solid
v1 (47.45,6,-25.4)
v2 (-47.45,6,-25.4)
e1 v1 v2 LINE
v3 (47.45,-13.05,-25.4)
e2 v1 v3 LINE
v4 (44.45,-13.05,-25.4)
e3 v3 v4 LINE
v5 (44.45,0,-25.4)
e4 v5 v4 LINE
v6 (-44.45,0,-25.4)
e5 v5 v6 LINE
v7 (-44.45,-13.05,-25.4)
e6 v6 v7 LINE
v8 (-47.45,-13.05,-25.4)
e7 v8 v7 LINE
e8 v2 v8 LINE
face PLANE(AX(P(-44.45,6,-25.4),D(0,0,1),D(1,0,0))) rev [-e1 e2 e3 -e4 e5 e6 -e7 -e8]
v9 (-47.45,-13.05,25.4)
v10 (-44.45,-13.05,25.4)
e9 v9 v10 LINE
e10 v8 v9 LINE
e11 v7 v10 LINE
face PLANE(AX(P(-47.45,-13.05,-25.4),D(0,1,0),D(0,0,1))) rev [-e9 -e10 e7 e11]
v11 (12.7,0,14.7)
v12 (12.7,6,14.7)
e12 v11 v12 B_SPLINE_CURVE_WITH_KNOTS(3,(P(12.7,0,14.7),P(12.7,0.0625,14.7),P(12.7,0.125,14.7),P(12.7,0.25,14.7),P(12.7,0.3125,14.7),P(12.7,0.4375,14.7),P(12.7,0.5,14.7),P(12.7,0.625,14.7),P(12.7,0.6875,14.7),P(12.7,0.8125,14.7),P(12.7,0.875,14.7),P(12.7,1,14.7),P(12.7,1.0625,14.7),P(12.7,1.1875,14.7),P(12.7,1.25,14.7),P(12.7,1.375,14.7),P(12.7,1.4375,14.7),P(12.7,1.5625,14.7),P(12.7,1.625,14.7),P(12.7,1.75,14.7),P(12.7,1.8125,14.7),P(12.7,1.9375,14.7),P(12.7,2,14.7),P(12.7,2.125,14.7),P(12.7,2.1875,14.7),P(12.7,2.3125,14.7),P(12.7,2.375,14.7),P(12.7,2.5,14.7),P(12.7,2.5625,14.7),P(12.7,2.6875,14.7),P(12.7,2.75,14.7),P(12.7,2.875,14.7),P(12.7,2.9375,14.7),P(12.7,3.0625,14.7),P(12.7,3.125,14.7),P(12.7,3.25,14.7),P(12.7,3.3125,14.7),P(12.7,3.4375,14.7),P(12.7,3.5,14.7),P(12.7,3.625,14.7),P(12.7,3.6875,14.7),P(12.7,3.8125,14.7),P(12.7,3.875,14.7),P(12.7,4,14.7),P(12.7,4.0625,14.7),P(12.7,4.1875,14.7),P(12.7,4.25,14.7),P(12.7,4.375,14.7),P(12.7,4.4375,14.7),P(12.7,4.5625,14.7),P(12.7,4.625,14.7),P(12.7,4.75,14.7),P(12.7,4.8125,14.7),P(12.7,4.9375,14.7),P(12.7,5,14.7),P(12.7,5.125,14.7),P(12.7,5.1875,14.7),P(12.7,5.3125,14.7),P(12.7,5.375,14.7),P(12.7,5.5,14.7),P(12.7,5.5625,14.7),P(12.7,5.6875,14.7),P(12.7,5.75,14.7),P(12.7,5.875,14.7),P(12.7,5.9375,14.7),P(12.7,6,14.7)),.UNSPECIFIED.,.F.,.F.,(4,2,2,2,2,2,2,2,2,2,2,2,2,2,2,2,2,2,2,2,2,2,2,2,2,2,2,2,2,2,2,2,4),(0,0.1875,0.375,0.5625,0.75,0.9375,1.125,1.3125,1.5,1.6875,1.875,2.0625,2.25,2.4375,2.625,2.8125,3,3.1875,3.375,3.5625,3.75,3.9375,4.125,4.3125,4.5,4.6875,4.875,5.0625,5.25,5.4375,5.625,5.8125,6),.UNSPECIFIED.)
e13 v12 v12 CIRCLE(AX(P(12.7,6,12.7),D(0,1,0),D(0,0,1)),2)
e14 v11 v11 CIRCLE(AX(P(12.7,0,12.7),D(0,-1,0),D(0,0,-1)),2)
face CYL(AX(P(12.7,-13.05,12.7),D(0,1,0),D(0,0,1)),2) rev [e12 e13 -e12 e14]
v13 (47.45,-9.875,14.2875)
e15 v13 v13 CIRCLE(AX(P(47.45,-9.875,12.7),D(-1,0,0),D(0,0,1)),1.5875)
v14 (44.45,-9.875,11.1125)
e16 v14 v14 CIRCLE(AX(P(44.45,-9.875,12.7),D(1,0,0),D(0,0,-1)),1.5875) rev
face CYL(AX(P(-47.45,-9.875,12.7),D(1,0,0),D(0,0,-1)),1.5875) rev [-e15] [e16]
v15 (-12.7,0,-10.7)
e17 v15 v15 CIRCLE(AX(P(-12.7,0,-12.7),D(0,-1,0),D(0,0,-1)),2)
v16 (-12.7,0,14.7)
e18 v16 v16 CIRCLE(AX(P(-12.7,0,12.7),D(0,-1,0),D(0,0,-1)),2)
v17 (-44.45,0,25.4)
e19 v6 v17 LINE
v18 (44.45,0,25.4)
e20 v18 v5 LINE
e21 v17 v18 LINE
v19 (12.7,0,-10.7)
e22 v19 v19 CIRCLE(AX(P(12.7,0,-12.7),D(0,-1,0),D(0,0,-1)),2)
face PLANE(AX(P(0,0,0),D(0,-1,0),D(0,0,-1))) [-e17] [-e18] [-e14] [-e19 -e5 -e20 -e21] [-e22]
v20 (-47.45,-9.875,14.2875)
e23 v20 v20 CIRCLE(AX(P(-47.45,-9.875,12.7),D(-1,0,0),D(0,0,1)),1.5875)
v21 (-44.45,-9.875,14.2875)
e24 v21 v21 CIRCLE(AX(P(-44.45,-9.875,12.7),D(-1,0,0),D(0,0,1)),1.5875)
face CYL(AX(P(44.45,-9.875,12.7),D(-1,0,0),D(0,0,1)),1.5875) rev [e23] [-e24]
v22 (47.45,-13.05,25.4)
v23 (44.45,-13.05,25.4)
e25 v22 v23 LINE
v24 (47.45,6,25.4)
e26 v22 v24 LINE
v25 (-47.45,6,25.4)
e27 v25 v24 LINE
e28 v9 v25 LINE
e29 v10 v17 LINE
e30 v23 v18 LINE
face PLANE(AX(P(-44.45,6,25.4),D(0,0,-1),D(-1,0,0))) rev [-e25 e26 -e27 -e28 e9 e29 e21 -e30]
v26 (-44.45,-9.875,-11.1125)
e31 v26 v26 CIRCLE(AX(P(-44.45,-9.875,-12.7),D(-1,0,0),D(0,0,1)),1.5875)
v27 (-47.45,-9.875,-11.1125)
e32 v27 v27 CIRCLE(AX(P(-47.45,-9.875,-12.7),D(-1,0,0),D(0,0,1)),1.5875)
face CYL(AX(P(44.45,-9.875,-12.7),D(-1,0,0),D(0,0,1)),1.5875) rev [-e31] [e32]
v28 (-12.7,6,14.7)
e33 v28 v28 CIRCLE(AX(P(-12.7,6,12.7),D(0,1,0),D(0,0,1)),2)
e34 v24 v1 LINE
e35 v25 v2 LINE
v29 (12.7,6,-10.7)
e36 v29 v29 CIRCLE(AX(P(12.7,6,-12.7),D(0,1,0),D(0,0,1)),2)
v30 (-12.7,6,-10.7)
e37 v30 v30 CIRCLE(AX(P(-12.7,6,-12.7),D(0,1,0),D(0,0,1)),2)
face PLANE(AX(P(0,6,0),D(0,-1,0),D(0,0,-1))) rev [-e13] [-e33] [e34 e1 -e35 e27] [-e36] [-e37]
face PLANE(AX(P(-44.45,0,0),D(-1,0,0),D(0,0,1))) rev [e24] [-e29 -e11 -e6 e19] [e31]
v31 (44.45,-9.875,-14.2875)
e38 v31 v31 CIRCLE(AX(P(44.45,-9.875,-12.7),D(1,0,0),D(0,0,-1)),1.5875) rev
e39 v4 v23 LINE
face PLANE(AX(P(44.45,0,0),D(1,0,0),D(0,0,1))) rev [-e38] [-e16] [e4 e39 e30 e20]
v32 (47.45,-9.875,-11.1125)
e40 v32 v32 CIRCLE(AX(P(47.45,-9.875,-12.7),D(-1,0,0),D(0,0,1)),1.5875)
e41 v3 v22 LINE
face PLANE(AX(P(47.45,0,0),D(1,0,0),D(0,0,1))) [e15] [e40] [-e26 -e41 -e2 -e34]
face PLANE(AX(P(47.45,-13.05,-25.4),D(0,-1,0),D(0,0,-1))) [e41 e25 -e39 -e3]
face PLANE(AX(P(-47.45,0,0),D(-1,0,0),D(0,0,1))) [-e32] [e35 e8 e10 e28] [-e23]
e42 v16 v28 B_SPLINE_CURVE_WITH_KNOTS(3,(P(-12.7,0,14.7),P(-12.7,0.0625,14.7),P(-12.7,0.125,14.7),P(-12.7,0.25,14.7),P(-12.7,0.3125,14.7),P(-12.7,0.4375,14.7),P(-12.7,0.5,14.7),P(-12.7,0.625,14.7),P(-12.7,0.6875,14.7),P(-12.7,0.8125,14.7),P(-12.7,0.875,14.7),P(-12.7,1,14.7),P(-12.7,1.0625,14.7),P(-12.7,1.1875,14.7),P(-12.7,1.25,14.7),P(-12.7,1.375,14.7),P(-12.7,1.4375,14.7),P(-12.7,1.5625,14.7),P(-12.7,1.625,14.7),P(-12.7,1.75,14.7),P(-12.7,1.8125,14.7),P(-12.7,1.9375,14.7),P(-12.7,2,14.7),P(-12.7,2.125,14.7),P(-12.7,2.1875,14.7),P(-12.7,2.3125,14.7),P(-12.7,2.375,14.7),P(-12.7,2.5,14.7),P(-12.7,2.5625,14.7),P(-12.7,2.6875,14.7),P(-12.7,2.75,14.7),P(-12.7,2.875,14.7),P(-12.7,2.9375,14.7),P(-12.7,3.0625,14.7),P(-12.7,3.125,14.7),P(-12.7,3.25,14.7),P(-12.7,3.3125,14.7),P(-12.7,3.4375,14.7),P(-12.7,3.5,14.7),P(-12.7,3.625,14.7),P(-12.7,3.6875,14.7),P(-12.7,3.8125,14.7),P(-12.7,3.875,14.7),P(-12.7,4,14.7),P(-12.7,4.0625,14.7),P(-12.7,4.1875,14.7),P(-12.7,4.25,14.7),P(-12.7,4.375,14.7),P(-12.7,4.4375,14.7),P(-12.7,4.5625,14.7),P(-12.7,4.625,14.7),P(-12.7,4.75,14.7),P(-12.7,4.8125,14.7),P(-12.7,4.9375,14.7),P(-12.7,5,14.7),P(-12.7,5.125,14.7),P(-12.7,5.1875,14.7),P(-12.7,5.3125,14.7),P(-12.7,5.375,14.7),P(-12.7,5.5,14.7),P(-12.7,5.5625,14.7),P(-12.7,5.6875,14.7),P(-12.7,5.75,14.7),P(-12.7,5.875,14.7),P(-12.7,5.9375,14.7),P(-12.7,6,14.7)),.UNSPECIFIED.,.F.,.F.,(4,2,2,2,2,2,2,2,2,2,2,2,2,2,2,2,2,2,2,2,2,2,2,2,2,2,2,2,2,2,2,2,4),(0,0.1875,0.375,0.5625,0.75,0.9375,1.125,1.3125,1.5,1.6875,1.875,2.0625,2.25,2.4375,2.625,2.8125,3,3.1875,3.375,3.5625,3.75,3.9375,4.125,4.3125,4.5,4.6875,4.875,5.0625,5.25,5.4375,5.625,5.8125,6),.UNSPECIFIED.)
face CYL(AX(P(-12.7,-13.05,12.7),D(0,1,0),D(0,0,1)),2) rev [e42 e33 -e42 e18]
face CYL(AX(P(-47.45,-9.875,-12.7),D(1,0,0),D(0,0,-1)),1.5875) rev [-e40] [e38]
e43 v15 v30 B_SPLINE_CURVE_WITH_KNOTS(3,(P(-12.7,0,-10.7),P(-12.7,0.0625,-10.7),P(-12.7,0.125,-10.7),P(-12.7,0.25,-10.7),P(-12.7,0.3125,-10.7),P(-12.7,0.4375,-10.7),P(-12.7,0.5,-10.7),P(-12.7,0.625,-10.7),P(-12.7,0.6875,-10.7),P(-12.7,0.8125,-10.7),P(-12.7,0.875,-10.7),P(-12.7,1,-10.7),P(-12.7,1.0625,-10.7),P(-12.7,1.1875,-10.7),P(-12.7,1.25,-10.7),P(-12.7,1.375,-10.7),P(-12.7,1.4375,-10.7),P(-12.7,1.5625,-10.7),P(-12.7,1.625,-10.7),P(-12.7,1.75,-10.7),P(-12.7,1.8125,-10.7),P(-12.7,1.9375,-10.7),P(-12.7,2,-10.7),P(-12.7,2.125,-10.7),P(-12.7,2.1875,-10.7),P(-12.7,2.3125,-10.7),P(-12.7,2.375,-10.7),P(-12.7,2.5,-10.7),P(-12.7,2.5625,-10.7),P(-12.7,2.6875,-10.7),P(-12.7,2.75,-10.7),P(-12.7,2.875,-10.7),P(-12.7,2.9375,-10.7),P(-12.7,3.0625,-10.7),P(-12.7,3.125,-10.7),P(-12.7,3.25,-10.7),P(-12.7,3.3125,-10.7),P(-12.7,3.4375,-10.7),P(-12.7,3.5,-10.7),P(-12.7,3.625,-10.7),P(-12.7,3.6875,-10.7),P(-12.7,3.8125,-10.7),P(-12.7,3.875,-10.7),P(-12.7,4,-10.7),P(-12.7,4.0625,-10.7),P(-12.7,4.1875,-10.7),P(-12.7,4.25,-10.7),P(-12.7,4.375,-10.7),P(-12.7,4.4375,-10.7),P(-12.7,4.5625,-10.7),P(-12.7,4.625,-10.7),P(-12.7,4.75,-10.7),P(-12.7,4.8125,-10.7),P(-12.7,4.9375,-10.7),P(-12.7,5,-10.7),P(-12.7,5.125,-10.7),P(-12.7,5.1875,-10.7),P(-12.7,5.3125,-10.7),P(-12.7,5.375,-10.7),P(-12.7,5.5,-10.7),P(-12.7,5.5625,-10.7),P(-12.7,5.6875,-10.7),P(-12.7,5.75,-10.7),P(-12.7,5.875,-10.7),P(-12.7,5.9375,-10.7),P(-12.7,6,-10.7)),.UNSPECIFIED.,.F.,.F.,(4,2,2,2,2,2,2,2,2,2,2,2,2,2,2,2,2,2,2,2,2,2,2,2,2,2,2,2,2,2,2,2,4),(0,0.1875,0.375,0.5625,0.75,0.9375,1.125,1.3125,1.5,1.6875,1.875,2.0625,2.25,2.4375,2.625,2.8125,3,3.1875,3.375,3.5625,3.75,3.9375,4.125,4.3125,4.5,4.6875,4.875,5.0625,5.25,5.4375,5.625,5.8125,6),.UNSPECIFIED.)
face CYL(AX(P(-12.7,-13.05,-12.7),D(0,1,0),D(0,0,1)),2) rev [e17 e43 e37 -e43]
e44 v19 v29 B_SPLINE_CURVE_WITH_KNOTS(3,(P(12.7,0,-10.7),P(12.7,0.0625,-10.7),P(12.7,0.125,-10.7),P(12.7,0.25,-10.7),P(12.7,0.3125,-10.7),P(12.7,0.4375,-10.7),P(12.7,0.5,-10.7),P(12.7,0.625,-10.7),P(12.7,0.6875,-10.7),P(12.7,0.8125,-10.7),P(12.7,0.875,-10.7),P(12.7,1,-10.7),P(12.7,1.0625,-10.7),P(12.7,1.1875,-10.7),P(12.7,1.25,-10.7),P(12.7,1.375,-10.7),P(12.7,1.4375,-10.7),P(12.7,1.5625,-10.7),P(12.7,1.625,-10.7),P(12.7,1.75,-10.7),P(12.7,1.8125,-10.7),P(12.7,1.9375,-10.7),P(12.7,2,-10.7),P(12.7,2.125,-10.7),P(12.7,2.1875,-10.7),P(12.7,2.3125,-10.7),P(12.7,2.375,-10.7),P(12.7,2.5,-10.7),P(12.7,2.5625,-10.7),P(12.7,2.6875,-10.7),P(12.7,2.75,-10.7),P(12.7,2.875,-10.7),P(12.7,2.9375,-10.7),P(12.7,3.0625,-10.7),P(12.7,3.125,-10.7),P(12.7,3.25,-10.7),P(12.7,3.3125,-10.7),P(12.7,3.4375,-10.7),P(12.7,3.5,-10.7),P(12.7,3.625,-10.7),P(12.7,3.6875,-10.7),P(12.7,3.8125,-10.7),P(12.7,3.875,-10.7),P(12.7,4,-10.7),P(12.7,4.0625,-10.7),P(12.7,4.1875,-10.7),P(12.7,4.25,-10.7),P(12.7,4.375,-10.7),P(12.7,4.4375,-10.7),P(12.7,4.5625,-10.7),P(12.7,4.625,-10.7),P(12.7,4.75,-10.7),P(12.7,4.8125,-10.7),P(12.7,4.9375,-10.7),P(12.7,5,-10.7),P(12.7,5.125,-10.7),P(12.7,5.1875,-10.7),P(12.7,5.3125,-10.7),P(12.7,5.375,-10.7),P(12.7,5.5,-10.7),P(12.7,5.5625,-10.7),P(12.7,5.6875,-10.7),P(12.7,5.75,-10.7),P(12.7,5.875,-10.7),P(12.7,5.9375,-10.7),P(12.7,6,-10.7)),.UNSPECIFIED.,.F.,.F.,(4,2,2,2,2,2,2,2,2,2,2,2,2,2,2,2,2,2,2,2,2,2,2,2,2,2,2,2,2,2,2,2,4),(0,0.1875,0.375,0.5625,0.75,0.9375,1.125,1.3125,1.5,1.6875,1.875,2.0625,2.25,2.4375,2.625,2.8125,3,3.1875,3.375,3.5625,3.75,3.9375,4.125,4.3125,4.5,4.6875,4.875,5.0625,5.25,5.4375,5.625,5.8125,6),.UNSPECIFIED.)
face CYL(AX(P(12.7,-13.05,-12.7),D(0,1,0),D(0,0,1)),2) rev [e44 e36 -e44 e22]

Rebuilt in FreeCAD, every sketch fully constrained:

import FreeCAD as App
import Part
import Sketcher

V = App.Vector
Q = App.Units.Quantity

doc = App.newDocument("Part")
body = doc.addObject("PartDesign::Body", "Body")

sketch1 = doc.addObject("Sketcher::SketchObject", "Sketch")
body.addObject(sketch1)
sketch1.AttachmentSupport = (doc.XZ_Plane, [""])
sketch1.MapMode = "FlatFace"
sketch1.addGeometry([
    Part.LineSegment(V(-44, -25, 0), V(-44, 25, 0)),
    Part.LineSegment(V(-44, 25, 0), V(44, 25, 0)),
    Part.LineSegment(V(44, 25, 0), V(44, -25, 0)),
    Part.LineSegment(V(44, -25, 0), V(-44, -25, 0)),
], False)
sketch1.addConstraint([
    Sketcher.Constraint("Coincident", 0, 2, 1, 1),
    Sketcher.Constraint("Coincident", 1, 2, 2, 1),
    Sketcher.Constraint("Coincident", 2, 2, 3, 1),
    Sketcher.Constraint("Coincident", 3, 2, 0, 1),
    Sketcher.Constraint("Vertical", 0),
    Sketcher.Constraint("Horizontal", 1),
    Sketcher.Constraint("Vertical", 2),
    Sketcher.Constraint("Horizontal", 3),
    Sketcher.Constraint("Symmetric", 0, 2, 2, 2, -1, 1),
    Sketcher.Constraint("DistanceY", 0, 1, 0, 2, Q("2 in")),
    Sketcher.Constraint("DistanceX", 1, 1, 1, 2, Q("3.5 in")),
])
pad1 = doc.addObject("PartDesign::Pad", "Pad")
body.addObject(pad1)
pad1.Profile = sketch1
pad1.Length = 6
pad1.Reversed = True

sketch2 = doc.addObject("Sketcher::SketchObject", "Sketch001")
body.addObject(sketch2)
sketch2.AttachmentSupport = (doc.YZ_Plane, [""])
sketch2.MapMode = "FlatFace"
sketch2.AttachmentOffset = App.Placement(V(0, 0, -1.75 * 25.4), App.Rotation())
sketch2.addGeometry([
    Part.LineSegment(V(6, -25, 0), V(-13, -25, 0)),
    Part.LineSegment(V(-13, -25, 0), V(-13, 25, 0)),
    Part.LineSegment(V(-13, 25, 0), V(6, 25, 0)),
    Part.LineSegment(V(6, 25, 0), V(6, -25, 0)),
], False)
sketch2.addConstraint([
    Sketcher.Constraint("Coincident", 0, 2, 1, 1),
    Sketcher.Constraint("Coincident", 1, 2, 2, 1),
    Sketcher.Constraint("Coincident", 2, 2, 3, 1),
    Sketcher.Constraint("Coincident", 3, 2, 0, 1),
    Sketcher.Constraint("Horizontal", 0),
    Sketcher.Constraint("Vertical", 1),
    Sketcher.Constraint("Horizontal", 2),
    Sketcher.Constraint("Vertical", 3),
    Sketcher.Constraint("DistanceY", 1, 1, 1, 2, Q("2 in")),
    Sketcher.Constraint("DistanceY", 0, 2, -1, 1, Q("1 in")),
    Sketcher.Constraint("DistanceX", 0, 2, 0, 1, Q("0.75 in")),
    Sketcher.Constraint("DistanceX", 0, 2, -1, 1, Q("13.05 mm")),
])
pad2 = doc.addObject("PartDesign::Pad", "Pad001")
body.addObject(pad2)
pad2.Profile = sketch2
pad2.Length = 3
pad2.Reversed = True

sketch3 = doc.addObject("Sketcher::SketchObject", "Sketch002")
body.addObject(sketch3)
sketch3.AttachmentSupport = (doc.YZ_Plane, [""])
sketch3.MapMode = "FlatFace"
sketch3.AttachmentOffset = App.Placement(V(0, 0, -47.45), App.Rotation())
sketch3.addGeometry([
    Part.Circle(V(-9.9, -12.7, 0), V(0, 0, 1), 1.6),
    Part.Circle(V(-9.9, 12.7, 0), V(0, 0, 1), 1.6),
], False)
sketch3.addConstraint([
    Sketcher.Constraint("Equal", 0, 1),
    Sketcher.Constraint("Symmetric", 0, 3, 1, 3, -1),
    Sketcher.Constraint("Diameter", 0, Q("0.125 in")),
    Sketcher.Constraint("DistanceY", 0, 3, 1, 3, Q("1 in")),
    Sketcher.Constraint("DistanceX", 0, 3, -1, 1, Q("9.875 mm")),
])
pocket1 = doc.addObject("PartDesign::Pocket", "Pocket")
body.addObject(pocket1)
pocket1.Profile = sketch3
pocket1.Type = "ThroughAll"
pocket1.Reversed = True
doc.recompute()

mirrored = doc.addObject("PartDesign::Mirrored", "Mirrored")
body.addObject(mirrored)
mirrored.Originals = [pad2, pocket1]
mirrored.MirrorPlane = (doc.YZ_Plane, [""])
body.Tip = mirrored

sketch4 = doc.addObject("Sketcher::SketchObject", "Sketch003")
body.addObject(sketch4)
sketch4.AttachmentSupport = (doc.XZ_Plane, [""])
sketch4.MapMode = "FlatFace"
sketch4.AttachmentOffset = App.Placement(V(0, 0, -6), App.Rotation())
sketch4.addGeometry([
    Part.Circle(V(-12.7, -12.7, 0), V(0, 0, 1), 2),
    Part.Circle(V(12.7, -12.7, 0), V(0, 0, 1), 2),
    Part.Circle(V(-12.7, 12.7, 0), V(0, 0, 1), 2),
    Part.Circle(V(12.7, 12.7, 0), V(0, 0, 1), 2),
], False)
sketch4.addConstraint([
    Sketcher.Constraint("Equal", 0, 1),
    Sketcher.Constraint("Equal", 1, 2),
    Sketcher.Constraint("Equal", 2, 3),
    Sketcher.Constraint("Symmetric", 1, 3, 2, 3, -1, 1),
    Sketcher.Constraint("Symmetric", 0, 3, 3, 3, -1, 1),
    Sketcher.Constraint("Symmetric", 0, 3, 1, 3, -2),
    Sketcher.Constraint("DistanceX", 0, 3, 1, 3, Q("1 in")),
    Sketcher.Constraint("DistanceY", 0, 3, 2, 3, Q("1 in")),
    Sketcher.Constraint("Diameter", 0, Q("4 mm")),
])
pocket2 = doc.addObject("PartDesign::Pocket", "Pocket001")
body.addObject(pocket2)
pocket2.Profile = sketch4
pocket2.Type = "ThroughAll"
pocket2.Reversed = True

doc.recompute()
